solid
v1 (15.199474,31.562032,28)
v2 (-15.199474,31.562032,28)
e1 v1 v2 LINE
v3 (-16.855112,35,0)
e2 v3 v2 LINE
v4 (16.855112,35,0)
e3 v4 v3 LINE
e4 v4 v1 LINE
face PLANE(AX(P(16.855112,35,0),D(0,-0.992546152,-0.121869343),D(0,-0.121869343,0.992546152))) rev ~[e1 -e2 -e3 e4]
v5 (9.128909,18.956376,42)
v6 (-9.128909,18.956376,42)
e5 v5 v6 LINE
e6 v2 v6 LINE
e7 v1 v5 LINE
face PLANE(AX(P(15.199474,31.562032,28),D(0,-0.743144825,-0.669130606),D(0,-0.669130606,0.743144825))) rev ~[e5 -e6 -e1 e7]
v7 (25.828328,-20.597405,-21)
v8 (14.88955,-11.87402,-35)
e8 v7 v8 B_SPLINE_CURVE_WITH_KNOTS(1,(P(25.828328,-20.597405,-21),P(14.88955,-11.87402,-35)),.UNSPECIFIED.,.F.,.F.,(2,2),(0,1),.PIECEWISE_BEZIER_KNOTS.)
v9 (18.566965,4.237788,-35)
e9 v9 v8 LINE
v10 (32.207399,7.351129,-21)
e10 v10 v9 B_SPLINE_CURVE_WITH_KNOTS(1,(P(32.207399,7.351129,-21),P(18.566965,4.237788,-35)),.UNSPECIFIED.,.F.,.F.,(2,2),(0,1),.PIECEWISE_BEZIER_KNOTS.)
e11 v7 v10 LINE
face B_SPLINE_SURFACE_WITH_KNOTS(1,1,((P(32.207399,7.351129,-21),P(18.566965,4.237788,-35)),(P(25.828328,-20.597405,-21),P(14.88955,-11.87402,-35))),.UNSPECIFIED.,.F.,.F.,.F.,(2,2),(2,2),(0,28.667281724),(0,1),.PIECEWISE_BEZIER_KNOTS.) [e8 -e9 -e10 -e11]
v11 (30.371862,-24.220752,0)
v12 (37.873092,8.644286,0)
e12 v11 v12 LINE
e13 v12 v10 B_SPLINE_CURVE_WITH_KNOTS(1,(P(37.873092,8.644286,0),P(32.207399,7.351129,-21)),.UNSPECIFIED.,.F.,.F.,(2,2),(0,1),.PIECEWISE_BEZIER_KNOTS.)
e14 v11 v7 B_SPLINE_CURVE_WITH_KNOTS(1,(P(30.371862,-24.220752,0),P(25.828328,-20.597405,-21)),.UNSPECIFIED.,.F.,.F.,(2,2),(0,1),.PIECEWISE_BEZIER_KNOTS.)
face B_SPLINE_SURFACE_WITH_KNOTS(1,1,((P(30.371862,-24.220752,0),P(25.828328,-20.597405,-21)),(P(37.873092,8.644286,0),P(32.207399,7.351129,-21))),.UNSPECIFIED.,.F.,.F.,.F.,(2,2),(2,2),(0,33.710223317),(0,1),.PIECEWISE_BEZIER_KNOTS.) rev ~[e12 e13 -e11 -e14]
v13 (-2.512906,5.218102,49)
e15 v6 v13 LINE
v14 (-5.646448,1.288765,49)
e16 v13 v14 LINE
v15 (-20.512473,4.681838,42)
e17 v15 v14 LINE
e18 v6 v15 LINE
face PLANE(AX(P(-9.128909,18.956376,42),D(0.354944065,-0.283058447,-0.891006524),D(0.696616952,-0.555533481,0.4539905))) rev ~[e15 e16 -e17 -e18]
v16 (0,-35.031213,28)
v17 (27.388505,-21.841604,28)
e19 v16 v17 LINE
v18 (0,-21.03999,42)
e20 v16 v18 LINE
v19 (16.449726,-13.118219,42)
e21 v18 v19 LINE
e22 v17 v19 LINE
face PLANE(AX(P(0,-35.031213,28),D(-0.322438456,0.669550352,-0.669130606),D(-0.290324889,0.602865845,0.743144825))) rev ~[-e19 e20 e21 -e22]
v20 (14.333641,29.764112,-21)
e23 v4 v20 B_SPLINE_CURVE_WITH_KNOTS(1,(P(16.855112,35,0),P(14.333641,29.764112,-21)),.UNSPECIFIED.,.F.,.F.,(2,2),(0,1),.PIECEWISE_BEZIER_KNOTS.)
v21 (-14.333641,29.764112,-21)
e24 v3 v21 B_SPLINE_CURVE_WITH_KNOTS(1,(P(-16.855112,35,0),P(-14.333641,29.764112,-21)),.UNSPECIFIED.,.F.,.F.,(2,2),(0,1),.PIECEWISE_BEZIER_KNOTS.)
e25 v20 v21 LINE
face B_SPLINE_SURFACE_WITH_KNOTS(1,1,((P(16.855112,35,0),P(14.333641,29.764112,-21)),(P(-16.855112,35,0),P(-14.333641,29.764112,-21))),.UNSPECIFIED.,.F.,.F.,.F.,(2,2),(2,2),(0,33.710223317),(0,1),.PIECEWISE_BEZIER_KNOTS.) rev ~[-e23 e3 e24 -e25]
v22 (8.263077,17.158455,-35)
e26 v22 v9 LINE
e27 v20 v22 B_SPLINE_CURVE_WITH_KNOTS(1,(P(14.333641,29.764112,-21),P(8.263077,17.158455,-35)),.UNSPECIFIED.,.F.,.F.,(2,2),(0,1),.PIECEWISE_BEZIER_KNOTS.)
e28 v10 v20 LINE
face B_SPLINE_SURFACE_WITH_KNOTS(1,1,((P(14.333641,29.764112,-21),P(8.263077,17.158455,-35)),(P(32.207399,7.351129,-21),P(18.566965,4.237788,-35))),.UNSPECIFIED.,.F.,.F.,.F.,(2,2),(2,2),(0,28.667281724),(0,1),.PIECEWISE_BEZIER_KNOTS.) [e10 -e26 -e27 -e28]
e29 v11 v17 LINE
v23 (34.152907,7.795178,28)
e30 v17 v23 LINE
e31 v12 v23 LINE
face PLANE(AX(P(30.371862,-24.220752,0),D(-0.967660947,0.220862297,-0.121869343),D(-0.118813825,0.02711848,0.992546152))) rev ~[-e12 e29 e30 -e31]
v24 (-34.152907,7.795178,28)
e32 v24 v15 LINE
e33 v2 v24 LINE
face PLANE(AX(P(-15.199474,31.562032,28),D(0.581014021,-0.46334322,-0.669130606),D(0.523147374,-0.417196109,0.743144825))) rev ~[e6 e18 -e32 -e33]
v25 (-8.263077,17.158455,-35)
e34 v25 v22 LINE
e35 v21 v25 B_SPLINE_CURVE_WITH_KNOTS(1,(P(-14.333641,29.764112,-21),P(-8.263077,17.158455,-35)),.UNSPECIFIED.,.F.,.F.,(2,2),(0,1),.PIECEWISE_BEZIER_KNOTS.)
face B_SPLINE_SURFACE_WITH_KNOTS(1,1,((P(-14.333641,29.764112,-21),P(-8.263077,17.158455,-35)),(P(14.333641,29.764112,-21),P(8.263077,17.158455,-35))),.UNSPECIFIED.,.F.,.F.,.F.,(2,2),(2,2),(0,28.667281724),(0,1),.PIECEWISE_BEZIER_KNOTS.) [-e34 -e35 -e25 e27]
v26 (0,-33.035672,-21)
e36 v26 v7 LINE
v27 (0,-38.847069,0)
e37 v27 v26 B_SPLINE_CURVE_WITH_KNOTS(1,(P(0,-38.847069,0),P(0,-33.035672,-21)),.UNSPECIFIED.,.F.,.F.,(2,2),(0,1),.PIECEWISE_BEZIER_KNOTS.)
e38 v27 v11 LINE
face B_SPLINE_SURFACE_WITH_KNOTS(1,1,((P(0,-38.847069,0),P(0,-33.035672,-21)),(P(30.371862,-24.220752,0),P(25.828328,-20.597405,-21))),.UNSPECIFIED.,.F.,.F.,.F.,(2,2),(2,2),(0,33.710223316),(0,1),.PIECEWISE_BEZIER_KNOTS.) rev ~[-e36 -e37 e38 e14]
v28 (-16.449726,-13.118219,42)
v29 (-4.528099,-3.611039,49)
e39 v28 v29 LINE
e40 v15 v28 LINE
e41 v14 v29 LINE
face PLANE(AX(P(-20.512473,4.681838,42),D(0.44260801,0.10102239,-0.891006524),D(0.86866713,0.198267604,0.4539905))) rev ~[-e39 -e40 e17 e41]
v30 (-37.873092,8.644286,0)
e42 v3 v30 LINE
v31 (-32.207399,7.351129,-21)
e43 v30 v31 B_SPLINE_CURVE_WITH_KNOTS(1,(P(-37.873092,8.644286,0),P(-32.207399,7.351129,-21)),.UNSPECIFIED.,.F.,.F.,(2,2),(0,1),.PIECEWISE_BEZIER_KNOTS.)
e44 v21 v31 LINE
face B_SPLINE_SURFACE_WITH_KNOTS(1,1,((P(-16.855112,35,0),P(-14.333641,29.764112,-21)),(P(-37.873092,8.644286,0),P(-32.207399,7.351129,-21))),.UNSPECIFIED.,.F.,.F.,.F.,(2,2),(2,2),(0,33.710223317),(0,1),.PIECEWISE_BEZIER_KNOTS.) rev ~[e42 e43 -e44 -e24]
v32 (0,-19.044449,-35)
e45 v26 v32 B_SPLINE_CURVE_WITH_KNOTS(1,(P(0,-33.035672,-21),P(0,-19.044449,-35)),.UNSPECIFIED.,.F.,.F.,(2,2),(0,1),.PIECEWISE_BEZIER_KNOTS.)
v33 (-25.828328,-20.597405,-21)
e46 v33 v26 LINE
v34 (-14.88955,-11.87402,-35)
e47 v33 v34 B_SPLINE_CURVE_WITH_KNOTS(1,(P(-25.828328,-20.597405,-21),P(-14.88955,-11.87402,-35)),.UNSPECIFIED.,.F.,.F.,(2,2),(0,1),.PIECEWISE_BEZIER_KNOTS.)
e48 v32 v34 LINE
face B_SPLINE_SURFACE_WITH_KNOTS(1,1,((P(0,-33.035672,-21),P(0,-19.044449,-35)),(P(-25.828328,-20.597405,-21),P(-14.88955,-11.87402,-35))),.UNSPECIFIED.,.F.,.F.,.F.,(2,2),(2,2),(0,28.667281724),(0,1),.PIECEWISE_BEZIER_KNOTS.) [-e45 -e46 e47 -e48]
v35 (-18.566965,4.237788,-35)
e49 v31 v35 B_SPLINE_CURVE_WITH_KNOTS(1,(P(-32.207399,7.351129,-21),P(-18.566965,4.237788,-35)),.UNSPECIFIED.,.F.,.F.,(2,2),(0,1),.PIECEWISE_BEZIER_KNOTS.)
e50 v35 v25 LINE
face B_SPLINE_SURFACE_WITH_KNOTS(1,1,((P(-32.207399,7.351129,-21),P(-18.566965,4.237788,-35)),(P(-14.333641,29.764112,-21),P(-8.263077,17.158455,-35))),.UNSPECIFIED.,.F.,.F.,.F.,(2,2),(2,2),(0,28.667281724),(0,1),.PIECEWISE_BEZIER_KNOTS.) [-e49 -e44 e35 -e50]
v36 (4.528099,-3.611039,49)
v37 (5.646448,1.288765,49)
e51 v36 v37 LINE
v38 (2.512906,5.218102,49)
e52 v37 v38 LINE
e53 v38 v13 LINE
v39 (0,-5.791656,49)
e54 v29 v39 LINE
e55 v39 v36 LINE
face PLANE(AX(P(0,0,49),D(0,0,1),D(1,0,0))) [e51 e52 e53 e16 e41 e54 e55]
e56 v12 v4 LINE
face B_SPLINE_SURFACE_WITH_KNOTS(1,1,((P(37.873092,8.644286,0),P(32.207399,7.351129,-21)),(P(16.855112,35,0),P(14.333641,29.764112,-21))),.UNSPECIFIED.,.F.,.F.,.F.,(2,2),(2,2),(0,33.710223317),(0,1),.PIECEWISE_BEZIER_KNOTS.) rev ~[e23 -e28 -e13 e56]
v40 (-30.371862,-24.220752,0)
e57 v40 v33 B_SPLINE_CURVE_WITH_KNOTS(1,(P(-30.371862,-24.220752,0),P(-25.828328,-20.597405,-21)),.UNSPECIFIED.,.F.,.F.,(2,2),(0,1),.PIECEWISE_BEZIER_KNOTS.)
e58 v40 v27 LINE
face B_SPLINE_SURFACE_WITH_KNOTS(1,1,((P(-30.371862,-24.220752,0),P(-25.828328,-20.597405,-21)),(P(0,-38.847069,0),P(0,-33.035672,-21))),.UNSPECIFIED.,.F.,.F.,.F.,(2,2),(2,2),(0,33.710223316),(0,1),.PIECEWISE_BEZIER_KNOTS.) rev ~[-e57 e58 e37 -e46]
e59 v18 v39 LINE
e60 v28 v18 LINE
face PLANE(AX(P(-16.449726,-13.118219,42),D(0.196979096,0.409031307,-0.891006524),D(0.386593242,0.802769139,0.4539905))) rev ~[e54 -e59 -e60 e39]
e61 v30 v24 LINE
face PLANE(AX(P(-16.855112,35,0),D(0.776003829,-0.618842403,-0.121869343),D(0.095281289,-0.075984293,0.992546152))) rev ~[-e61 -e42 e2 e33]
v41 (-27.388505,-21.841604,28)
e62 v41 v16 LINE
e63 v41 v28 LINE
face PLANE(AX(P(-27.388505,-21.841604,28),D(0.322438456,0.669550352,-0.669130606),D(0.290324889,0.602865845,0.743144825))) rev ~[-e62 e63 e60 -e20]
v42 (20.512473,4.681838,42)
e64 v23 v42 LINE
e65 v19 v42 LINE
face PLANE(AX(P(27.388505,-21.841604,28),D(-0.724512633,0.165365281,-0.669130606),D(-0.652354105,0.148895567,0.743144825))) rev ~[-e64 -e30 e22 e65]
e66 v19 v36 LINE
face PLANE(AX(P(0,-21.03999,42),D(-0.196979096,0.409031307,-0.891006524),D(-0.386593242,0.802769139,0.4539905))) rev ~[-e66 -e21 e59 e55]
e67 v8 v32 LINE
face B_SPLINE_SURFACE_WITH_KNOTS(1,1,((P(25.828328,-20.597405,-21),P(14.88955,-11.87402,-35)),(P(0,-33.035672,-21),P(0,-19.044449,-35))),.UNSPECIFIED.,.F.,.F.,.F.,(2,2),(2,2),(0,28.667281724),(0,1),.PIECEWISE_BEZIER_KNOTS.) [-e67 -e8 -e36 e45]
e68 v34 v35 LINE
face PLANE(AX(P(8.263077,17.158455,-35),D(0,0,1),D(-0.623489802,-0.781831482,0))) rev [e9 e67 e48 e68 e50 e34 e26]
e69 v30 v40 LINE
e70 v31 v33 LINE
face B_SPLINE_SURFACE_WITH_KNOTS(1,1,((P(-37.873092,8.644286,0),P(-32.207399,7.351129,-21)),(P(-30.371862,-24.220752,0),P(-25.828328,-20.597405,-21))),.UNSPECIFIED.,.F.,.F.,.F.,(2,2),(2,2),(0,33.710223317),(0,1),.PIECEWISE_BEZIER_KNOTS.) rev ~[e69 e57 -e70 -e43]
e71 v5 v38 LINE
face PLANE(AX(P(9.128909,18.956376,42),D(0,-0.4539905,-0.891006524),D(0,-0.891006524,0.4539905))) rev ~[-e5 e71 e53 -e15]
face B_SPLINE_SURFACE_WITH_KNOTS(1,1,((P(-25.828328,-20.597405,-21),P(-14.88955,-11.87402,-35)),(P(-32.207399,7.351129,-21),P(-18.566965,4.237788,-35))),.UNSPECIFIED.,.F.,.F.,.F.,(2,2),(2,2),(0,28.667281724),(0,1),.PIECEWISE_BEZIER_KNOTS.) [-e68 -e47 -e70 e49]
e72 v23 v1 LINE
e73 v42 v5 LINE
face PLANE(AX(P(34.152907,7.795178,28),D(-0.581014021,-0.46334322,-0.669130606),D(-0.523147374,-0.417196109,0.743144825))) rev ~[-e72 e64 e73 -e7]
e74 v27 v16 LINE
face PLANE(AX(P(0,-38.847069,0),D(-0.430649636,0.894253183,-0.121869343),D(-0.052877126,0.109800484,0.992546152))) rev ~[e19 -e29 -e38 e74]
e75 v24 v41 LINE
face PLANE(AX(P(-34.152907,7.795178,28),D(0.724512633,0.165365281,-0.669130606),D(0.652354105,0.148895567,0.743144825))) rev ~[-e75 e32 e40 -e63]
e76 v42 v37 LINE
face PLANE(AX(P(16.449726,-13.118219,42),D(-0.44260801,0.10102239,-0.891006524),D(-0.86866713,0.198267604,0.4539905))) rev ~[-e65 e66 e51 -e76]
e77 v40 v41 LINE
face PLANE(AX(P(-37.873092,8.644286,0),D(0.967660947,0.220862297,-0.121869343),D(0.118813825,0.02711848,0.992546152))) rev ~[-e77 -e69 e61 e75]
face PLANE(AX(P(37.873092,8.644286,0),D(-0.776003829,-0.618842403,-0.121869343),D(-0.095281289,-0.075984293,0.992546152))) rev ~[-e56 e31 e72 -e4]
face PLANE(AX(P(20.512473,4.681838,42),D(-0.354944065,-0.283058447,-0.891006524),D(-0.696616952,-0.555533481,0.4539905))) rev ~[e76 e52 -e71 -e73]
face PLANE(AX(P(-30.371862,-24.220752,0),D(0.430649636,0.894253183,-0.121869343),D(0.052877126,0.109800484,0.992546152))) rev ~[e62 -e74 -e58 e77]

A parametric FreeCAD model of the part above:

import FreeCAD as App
import Part
import Sketcher
from FreeCAD import Vector
Q = App.Units.Quantity

doc = App.newDocument("Part")
params = doc.addObject("Spreadsheet::Sheet", "Params")
for row, (alias, value) in enumerate([
    ("pad1_length", "28 mm"),
    ("pad1_taper", "-7 deg"),
    ("pad2_length", "14 mm"),
    ("pad2_taper", "-42 deg"),
    ("pad3_length", "7 mm"),
    ("pad3_taper", "-63 deg"),
    ("pad4_length", "21 mm"),
    ("pad4_taper", "-14 deg"),
    ("pad5_length", "14 mm"),
    ("pad5_taper", "-42 deg"),
], start=1):
    params.set(f"A{row}", alias)
    params.set(f"B{row}", "=" + value)
    params.setAlias(f"B{row}", alias)

body = doc.addObject("PartDesign::Body", "Body")

sketch1 = doc.addObject("Sketcher::SketchObject", "Sketch")
body.addObject(sketch1)
sketch1.AttachmentSupport = (doc.XY_Plane, [""])
sketch1.MapMode = "FlatFace"
sketch1.addGeometry([
    Part.LineSegment(Vector(17, 35, 0), Vector(-17, 35, 0)),
    Part.LineSegment(Vector(-17, 35, 0), Vector(-38, 9, 0)),
    Part.LineSegment(Vector(-38, 9, 0), Vector(-30, -24, 0)),
    Part.LineSegment(Vector(-30, -24, 0), Vector(0, -39, 0)),
    Part.LineSegment(Vector(0, -39, 0), Vector(30, -24, 0)),
    Part.LineSegment(Vector(30, -24, 0), Vector(38, 9, 0)),
    Part.LineSegment(Vector(38, 9, 0), Vector(17, 35, 0)),
], False)
sketch1.addConstraint([
    Sketcher.Constraint("Coincident", 0, 2, 1, 1),
    Sketcher.Constraint("Coincident", 1, 2, 2, 1),
    Sketcher.Constraint("Coincident", 2, 2, 3, 1),
    Sketcher.Constraint("Coincident", 3, 2, 4, 1),
    Sketcher.Constraint("Coincident", 4, 2, 5, 1),
    Sketcher.Constraint("Coincident", 5, 2, 6, 1),
    Sketcher.Constraint("Coincident", 6, 2, 0, 1),
    Sketcher.Constraint("Horizontal", 0),
    Sketcher.Constraint("Symmetric", 2, 2, 4, 2, -2),
    Sketcher.Constraint("Symmetric", 1, 2, 5, 2, -2),
    Sketcher.Constraint("PointOnObject", 3, 2, -2),
    Sketcher.Constraint("Equal", 1, 2),
    Sketcher.Constraint("Equal", 2, 3),
    Sketcher.Constraint("Equal", 5, 6),
    Sketcher.Constraint("DistanceY", -1, 1, 0, 2, Q("35 mm")),
    Sketcher.Constraint("DistanceX", 0, 2, 0, 1, Q("33.710223 mm")),
    Sketcher.Constraint("DistanceX", 2, 2, -1, 1, Q("30.371862 mm")),
    Sketcher.Constraint("DistanceY", 2, 2, -1, 1, Q("24.220752 mm")),
    Sketcher.Constraint("DistanceY", 3, 2, -1, 1, Q("38.847069 mm")),
])
pad1 = doc.addObject("PartDesign::Pad", "Pad")
body.addObject(pad1)
pad1.Profile = sketch1
pad1.setExpression("Length", "Params.pad1_length")
pad1.setExpression("TaperAngle", "Params.pad1_taper")

sketch2 = doc.addObject("Sketcher::SketchObject", "Sketch001")
body.addObject(sketch2)
sketch2.AttachmentSupport = (doc.XY_Plane, [""])
sketch2.MapMode = "FlatFace"
sketch2.AttachmentOffset = App.Placement(Vector(0, 0, 28), App.Rotation())
sketch2.addGeometry([
    Part.LineSegment(Vector(34, 8, 0), Vector(15, 32, 0)),
    Part.LineSegment(Vector(15, 32, 0), Vector(-15, 32, 0)),
    Part.LineSegment(Vector(-15, 32, 0), Vector(-34, 8, 0)),
    Part.LineSegment(Vector(-34, 8, 0), Vector(-27, -22, 0)),
    Part.LineSegment(Vector(-27, -22, 0), Vector(0, -35, 0)),
    Part.LineSegment(Vector(0, -35, 0), Vector(27, -22, 0)),
    Part.LineSegment(Vector(27, -22, 0), Vector(34, 8, 0)),
], False)
sketch2.addConstraint([
    Sketcher.Constraint("Coincident", 0, 2, 1, 1),
    Sketcher.Constraint("Coincident", 1, 2, 2, 1),
    Sketcher.Constraint("Coincident", 2, 2, 3, 1),
    Sketcher.Constraint("Coincident", 3, 2, 4, 1),
    Sketcher.Constraint("Coincident", 4, 2, 5, 1),
    Sketcher.Constraint("Coincident", 5, 2, 6, 1),
    Sketcher.Constraint("Coincident", 6, 2, 0, 1),
    Sketcher.Constraint("Horizontal", 1),
    Sketcher.Constraint("Symmetric", 3, 2, 5, 2, -2),
    Sketcher.Constraint("Symmetric", 2, 2, 6, 2, -2),
    Sketcher.Constraint("PointOnObject", 4, 2, -2),
    Sketcher.Constraint("Equal", 0, 2),
    Sketcher.Constraint("Equal", 2, 3),
    Sketcher.Constraint("Equal", 3, 4),
    Sketcher.Constraint("DistanceX", 1, 2, 1, 1, Q("30.398947 mm")),
    Sketcher.Constraint("DistanceY", -1, 1, 2, 2, Q("7.795178 mm")),
    Sketcher.Constraint("DistanceX", 2, 2, 0, 2, Q("49.352381 mm")),
    Sketcher.Constraint("DistanceX", 3, 2, 1, 2, Q("12.189032 mm")),
    Sketcher.Constraint("DistanceY", 4, 2, 3, 2, Q("13.189609 mm")),
])
pad2 = doc.addObject("PartDesign::Pad", "Pad001")
body.addObject(pad2)
pad2.Profile = sketch2
pad2.setExpression("Length", "Params.pad2_length")
pad2.setExpression("TaperAngle", "Params.pad2_taper")

sketch3 = doc.addObject("Sketcher::SketchObject", "Sketch002")
body.addObject(sketch3)
sketch3.AttachmentSupport = (doc.XY_Plane, [""])
sketch3.MapMode = "FlatFace"
sketch3.AttachmentOffset = App.Placement(Vector(0, 0, 42), App.Rotation())
sketch3.addGeometry([
    Part.LineSegment(Vector(16, -13, 0), Vector(21, 5, 0)),
    Part.LineSegment(Vector(21, 5, 0), Vector(9, 19, 0)),
    Part.LineSegment(Vector(9, 19, 0), Vector(-9, 19, 0)),
    Part.LineSegment(Vector(-9, 19, 0), Vector(-21, 5, 0)),
    Part.LineSegment(Vector(-21, 5, 0), Vector(-16, -13, 0)),
    Part.LineSegment(Vector(-16, -13, 0), Vector(0, -21, 0)),
    Part.LineSegment(Vector(0, -21, 0), Vector(16, -13, 0)),
], False)
sketch3.addConstraint([
    Sketcher.Constraint("Coincident", 0, 2, 1, 1),
    Sketcher.Constraint("Coincident", 1, 2, 2, 1),
    Sketcher.Constraint("Coincident", 2, 2, 3, 1),
    Sketcher.Constraint("Coincident", 3, 2, 4, 1),
    Sketcher.Constraint("Coincident", 4, 2, 5, 1),
    Sketcher.Constraint("Coincident", 5, 2, 6, 1),
    Sketcher.Constraint("Coincident", 6, 2, 0, 1),
    Sketcher.Constraint("Horizontal", 2),
    Sketcher.Constraint("Symmetric", 0, 2, 3, 2, -2),
    Sketcher.Constraint("Symmetric", 4, 2, 6, 2, -2),
    Sketcher.Constraint("PointOnObject", 5, 2, -2),
    Sketcher.Constraint("Equal", 0, 1),
    Sketcher.Constraint("Equal", 1, 3),
    Sketcher.Constraint("Equal", 4, 5),
    Sketcher.Constraint("DistanceX", 2, 2, 2, 1, Q("18.257819 mm")),
    Sketcher.Constraint("DistanceX", 4, 2, 0, 2, Q("36.9622 mm")),
    Sketcher.Constraint("Distance", 0, Q("18.257819 mm")),
    Sketcher.Constraint("DistanceY", -1, 1, 0, 2, Q("4.681838 mm")),
    Sketcher.Constraint("DistanceY", 4, 2, -1, 1, Q("13.118219 mm")),
])
pad3 = doc.addObject("PartDesign::Pad", "Pad002")
body.addObject(pad3)
pad3.Profile = sketch3
pad3.setExpression("Length", "Params.pad3_length")
pad3.setExpression("TaperAngle", "Params.pad3_taper")

sketch4 = doc.addObject("Sketcher::SketchObject", "Sketch003")
body.addObject(sketch4)
sketch4.AttachmentSupport = (doc.XY_Plane, [""])
sketch4.MapMode = "FlatFace"
sketch4.addGeometry([
    Part.LineSegment(Vector(17, 35, 0), Vector(-17, 35, 0)),
    Part.LineSegment(Vector(-17, 35, 0), Vector(-38, 9, 0)),
    Part.LineSegment(Vector(-38, 9, 0), Vector(-30, -24, 0)),
    Part.LineSegment(Vector(-30, -24, 0), Vector(0, -39, 0)),
    Part.LineSegment(Vector(0, -39, 0), Vector(30, -24, 0)),
    Part.LineSegment(Vector(30, -24, 0), Vector(38, 9, 0)),
    Part.LineSegment(Vector(38, 9, 0), Vector(17, 35, 0)),
], False)
sketch4.addConstraint([
    Sketcher.Constraint("Coincident", 0, 2, 1, 1),
    Sketcher.Constraint("Coincident", 1, 2, 2, 1),
    Sketcher.Constraint("Coincident", 2, 2, 3, 1),
    Sketcher.Constraint("Coincident", 3, 2, 4, 1),
    Sketcher.Constraint("Coincident", 4, 2, 5, 1),
    Sketcher.Constraint("Coincident", 5, 2, 6, 1),
    Sketcher.Constraint("Coincident", 6, 2, 0, 1),
    Sketcher.Constraint("Horizontal", 0),
    Sketcher.Constraint("Symmetric", 2, 2, 4, 2, -2),
    Sketcher.Constraint("Symmetric", 1, 2, 5, 2, -2),
    Sketcher.Constraint("PointOnObject", 3, 2, -2),
    Sketcher.Constraint("Equal", 1, 2),
    Sketcher.Constraint("Equal", 2, 3),
    Sketcher.Constraint("Equal", 5, 6),
    Sketcher.Constraint("DistanceY", -1, 1, 0, 2, Q("35 mm")),
    Sketcher.Constraint("DistanceX", 0, 2, 0, 1, Q("33.710223 mm")),
    Sketcher.Constraint("DistanceX", 2, 2, -1, 1, Q("30.371862 mm")),
    Sketcher.Constraint("DistanceY", 2, 2, -1, 1, Q("24.220752 mm")),
    Sketcher.Constraint("DistanceY", 3, 2, -1, 1, Q("38.847069 mm")),
])
pad4 = doc.addObject("PartDesign::Pad", "Pad003")
body.addObject(pad4)
pad4.Profile = sketch4
pad4.setExpression("Length", "Params.pad4_length")
pad4.Reversed = True
pad4.setExpression("TaperAngle", "Params.pad4_taper")

sketch5 = doc.addObject("Sketcher::SketchObject", "Sketch004")
body.addObject(sketch5)
sketch5.AttachmentSupport = (doc.XY_Plane, [""])
sketch5.MapMode = "FlatFace"
sketch5.AttachmentOffset = App.Placement(Vector(0, 0, -21), App.Rotation())
sketch5.addGeometry([
    Part.LineSegment(Vector(14, 30, 0), Vector(32, 7, 0)),
    Part.LineSegment(Vector(32, 7, 0), Vector(26, -21, 0)),
    Part.LineSegment(Vector(26, -21, 0), Vector(0, -33, 0)),
    Part.LineSegment(Vector(0, -33, 0), Vector(-26, -21, 0)),
    Part.LineSegment(Vector(-26, -21, 0), Vector(-32, 7, 0)),
    Part.LineSegment(Vector(-32, 7, 0), Vector(-14, 30, 0)),
    Part.LineSegment(Vector(-14, 30, 0), Vector(14, 30, 0)),
], False)
sketch5.addConstraint([
    Sketcher.Constraint("Coincident", 0, 2, 1, 1),
    Sketcher.Constraint("Coincident", 1, 2, 2, 1),
    Sketcher.Constraint("Coincident", 2, 2, 3, 1),
    Sketcher.Constraint("Coincident", 3, 2, 4, 1),
    Sketcher.Constraint("Coincident", 4, 2, 5, 1),
    Sketcher.Constraint("Coincident", 5, 2, 6, 1),
    Sketcher.Constraint("Coincident", 6, 2, 0, 1),
    Sketcher.Constraint("Horizontal", 6),
    Sketcher.Constraint("Symmetric", 1, 2, 3, 2, -2),
    Sketcher.Constraint("Symmetric", 0, 2, 4, 2, -2),
    Sketcher.Constraint("PointOnObject", 2, 2, -2),
    Sketcher.Constraint("Equal", 0, 1),
    Sketcher.Constraint("Equal", 1, 2),
    Sketcher.Constraint("Equal", 4, 5),
    Sketcher.Constraint("DistanceX", 6, 1, 6, 2, Q("28.667282 mm")),
    Sketcher.Constraint("DistanceX", -1, 1, 0, 2, Q("32.207399 mm")),
    Sketcher.Constraint("DistanceY", 2, 2, 0, 2, Q("40.386801 mm")),
    Sketcher.Constraint("Distance", 0, Q("28.667282 mm")),
    Sketcher.Constraint("DistanceY", -1, 1, 0, 2, Q("7.351129 mm")),
])
pad5 = doc.addObject("PartDesign::Pad", "Pad004")
body.addObject(pad5)
pad5.Profile = sketch5
pad5.setExpression("Length", "Params.pad5_length")
pad5.Reversed = True
pad5.setExpression("TaperAngle", "Params.pad5_taper")

doc.recompute()
